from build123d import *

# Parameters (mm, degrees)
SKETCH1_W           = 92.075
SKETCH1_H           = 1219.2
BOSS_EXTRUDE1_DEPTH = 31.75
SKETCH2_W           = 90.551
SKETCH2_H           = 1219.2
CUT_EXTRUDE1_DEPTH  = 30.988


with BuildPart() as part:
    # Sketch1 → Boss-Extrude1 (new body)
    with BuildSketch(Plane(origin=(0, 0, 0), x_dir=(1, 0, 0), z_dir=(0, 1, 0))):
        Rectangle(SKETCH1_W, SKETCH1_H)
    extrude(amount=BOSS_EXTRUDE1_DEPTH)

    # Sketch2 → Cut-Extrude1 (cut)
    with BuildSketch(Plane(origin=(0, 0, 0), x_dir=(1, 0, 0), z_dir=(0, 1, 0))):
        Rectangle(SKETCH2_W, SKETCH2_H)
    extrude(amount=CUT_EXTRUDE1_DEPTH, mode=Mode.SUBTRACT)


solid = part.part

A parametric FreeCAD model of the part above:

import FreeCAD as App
import Part
import Sketcher
from FreeCAD import Vector
Q = App.Units.Quantity

doc = App.newDocument("Part")
body = doc.addObject("PartDesign::Body", "Body")

# Sketch on XZ plane
sketch1 = doc.addObject("Sketcher::SketchObject", "Sketch")
body.addObject(sketch1)
sketch1.AttachmentSupport = (doc.XZ_Plane, [""])
sketch1.MapMode = "FlatFace"
sketch1.addGeometry([
    Part.LineSegment(Vector(-46, -610, 0), Vector(-46, 610, 0)),
    Part.LineSegment(Vector(-46, 610, 0), Vector(46, 610, 0)),
    Part.LineSegment(Vector(46, 610, 0), Vector(46, -610, 0)),
    Part.LineSegment(Vector(46, -610, 0), Vector(-46, -610, 0)),
], False)
sketch1.addConstraint([
    Sketcher.Constraint("Coincident", 0, 2, 1, 1),
    Sketcher.Constraint("Coincident", 1, 2, 2, 1),
    Sketcher.Constraint("Coincident", 2, 2, 3, 1),
    Sketcher.Constraint("Coincident", 3, 2, 0, 1),
    Sketcher.Constraint("Vertical", 0),
    Sketcher.Constraint("Horizontal", 1),
    Sketcher.Constraint("Vertical", 2),
    Sketcher.Constraint("Horizontal", 3),
    Sketcher.Constraint("Symmetric", 0, 2, 2, 2, -1, 1),
    Sketcher.Constraint("DistanceY", 0, 1, 0, 2, Q("48 in")),
    Sketcher.Constraint("DistanceX", 1, 1, 1, 2, Q("3.625 in")),
])
pad1 = doc.addObject("PartDesign::Pad", "Pad")
body.addObject(pad1)
pad1.Profile = sketch1
pad1.Length = Q("1.25 in")
pad1.Reversed = True

# Sketch on XZ plane
sketch2 = doc.addObject("Sketcher::SketchObject", "Sketch001")
body.addObject(sketch2)
sketch2.AttachmentSupport = (doc.XZ_Plane, [""])
sketch2.MapMode = "FlatFace"
sketch2.addGeometry([
    Part.LineSegment(Vector(-45, -610, 0), Vector(-45, 610, 0)),
    Part.LineSegment(Vector(-45, 610, 0), Vector(45, 610, 0)),
    Part.LineSegment(Vector(45, 610, 0), Vector(45, -610, 0)),
    Part.LineSegment(Vector(45, -610, 0), Vector(-45, -610, 0)),
], False)
sketch2.addConstraint([
    Sketcher.Constraint("Coincident", 0, 2, 1, 1),
    Sketcher.Constraint("Coincident", 1, 2, 2, 1),
    Sketcher.Constraint("Coincident", 2, 2, 3, 1),
    Sketcher.Constraint("Coincident", 3, 2, 0, 1),
    Sketcher.Constraint("Vertical", 0),
    Sketcher.Constraint("Horizontal", 1),
    Sketcher.Constraint("Vertical", 2),
    Sketcher.Constraint("Horizontal", 3),
    Sketcher.Constraint("Symmetric", 0, 2, 2, 2, -1, 1),
    Sketcher.Constraint("DistanceY", 0, 1, 0, 2, Q("48 in")),
    Sketcher.Constraint("DistanceX", 1, 1, 1, 2, Q("3.565 in")),
])
pocket1 = doc.addObject("PartDesign::Pocket", "Pocket")
body.addObject(pocket1)
pocket1.Profile = sketch2
pocket1.Length = Q("1.22 in")

doc.recompute()
